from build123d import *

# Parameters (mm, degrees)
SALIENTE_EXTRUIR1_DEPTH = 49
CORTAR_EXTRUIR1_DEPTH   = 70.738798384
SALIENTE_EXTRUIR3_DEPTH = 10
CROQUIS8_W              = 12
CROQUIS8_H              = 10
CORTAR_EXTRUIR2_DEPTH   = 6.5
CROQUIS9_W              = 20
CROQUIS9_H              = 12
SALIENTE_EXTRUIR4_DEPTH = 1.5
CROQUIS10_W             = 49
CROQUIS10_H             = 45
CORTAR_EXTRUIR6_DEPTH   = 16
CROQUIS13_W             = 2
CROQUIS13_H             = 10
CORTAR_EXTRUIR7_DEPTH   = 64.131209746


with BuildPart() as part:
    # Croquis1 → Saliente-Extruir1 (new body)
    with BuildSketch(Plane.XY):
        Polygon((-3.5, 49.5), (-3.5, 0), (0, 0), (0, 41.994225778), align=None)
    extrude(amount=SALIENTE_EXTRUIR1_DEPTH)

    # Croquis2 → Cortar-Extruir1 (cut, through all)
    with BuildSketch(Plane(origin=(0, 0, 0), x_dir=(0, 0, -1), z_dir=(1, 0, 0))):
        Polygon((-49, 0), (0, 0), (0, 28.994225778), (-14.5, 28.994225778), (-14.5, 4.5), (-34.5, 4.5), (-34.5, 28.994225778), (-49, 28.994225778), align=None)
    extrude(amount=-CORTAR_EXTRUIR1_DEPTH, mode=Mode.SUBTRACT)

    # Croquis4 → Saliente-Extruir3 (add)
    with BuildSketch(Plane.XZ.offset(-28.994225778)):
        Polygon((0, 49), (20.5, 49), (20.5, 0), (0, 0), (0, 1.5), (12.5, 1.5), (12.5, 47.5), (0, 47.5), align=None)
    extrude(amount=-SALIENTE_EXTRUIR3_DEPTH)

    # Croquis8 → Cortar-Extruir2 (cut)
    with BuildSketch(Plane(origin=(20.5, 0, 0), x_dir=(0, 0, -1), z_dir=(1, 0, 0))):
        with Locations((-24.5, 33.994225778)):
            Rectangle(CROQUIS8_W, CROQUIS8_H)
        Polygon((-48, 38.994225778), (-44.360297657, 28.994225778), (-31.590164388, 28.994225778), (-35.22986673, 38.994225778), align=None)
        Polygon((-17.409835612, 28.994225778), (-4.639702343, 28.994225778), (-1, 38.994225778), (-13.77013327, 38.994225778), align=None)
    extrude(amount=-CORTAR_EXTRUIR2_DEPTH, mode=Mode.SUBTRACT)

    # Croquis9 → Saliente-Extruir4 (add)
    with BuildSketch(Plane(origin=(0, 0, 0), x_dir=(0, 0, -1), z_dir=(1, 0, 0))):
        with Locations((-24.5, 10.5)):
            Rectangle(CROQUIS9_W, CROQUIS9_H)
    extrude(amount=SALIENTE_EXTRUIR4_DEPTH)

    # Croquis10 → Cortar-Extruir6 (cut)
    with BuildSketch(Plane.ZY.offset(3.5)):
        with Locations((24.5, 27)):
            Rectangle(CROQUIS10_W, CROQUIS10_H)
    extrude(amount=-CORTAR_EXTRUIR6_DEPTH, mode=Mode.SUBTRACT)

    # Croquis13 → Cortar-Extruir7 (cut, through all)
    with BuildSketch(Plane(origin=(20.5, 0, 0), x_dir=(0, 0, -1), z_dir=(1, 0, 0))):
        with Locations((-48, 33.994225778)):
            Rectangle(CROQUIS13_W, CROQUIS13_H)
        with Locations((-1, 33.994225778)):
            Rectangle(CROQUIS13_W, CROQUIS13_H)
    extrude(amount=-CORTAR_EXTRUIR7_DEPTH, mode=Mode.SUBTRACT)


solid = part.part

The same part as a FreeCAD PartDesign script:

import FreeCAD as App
import Part
import Sketcher
Q = App.Units.Quantity

doc = App.newDocument("Part")
params = doc.addObject("Spreadsheet::Sheet", "Params")
for row, (alias, value) in enumerate([
    ("sketch1_width", "3.5 mm"),
    ("sketch1_height", "49.5 mm"),
    ("pad1_length", "49 mm"),
    ("sketch2_height", "49 mm"),
    ("sketch2_height2", "20 mm"),
    ("sketch3_height", "46 mm"),
    ("sketch3_height2", "49 mm"),
    ("sketch3_width", "20.5 mm"),
    ("sketch3_width2", "12.5 mm"),
    ("pad2_length", "10 mm"),
    ("sketch4_width", "10 mm"),
    ("sketch4_height", "12 mm"),
    ("pocket2_length", "6.5 mm"),
    ("sketch5_width", "12 mm"),
    ("sketch5_height", "20 mm"),
    ("pad3_length", "1.5 mm"),
    ("sketch6_width", "45 mm"),
    ("sketch6_height", "49 mm"),
    ("pocket3_length", "16 mm"),
    ("sketch7_width", "10 mm"),
    ("sketch7_height", "2 mm"),
], start=1):
    params.set(f"A{row}", alias)
    params.set(f"B{row}", "=" + value)
    params.setAlias(f"B{row}", alias)

body = doc.addObject("PartDesign::Body", "Body")

sketch1 = body.newObject("Sketcher::SketchObject", "Sketch")
sketch1.AttachmentSupport = (doc.getObject("XY_Plane"), [""])
sketch1.MapMode = "FlatFace"
sketch1.addGeometry(Part.LineSegment(App.Vector(-3.5, 49.5, 0), App.Vector(-3.5, 0, 0)), False)
sketch1.addGeometry(Part.LineSegment(App.Vector(-3.5, 0, 0), App.Vector(0, 0, 0)), False)
sketch1.addGeometry(Part.LineSegment(App.Vector(0, 0, 0), App.Vector(0, 41.994226, 0)), False)
sketch1.addGeometry(Part.LineSegment(App.Vector(0, 41.994226, 0), App.Vector(-3.5, 49.5, 0)), False)
sketch1.addConstraint(Sketcher.Constraint("Coincident", 0, 2, 1, 1))
sketch1.addConstraint(Sketcher.Constraint("Coincident", 1, 2, 2, 1))
sketch1.addConstraint(Sketcher.Constraint("Coincident", 2, 2, 3, 1))
sketch1.addConstraint(Sketcher.Constraint("Coincident", 3, 2, 0, 1))
sketch1.addConstraint(Sketcher.Constraint("Vertical", 0))
sketch1.addConstraint(Sketcher.Constraint("Horizontal", 1))
sketch1.addConstraint(Sketcher.Constraint("Vertical", 2))
sketch1.addConstraint(Sketcher.Constraint("Coincident", 1, 2, -1, 1))
sketch1.addConstraint(Sketcher.Constraint("Angle", 3, Q("115 deg")))
sketch1.addConstraint(Sketcher.Constraint("DistanceX", 1, 1, 1, 2, Q("3.5 mm")))
sketch1.addConstraint(Sketcher.Constraint("DistanceY", 0, 2, 0, 1, Q("49.5 mm")))
sketch1.setExpression("Constraints[9]", "Params.sketch1_width")
sketch1.setExpression("Constraints[10]", "Params.sketch1_height")
pad1 = body.newObject("PartDesign::Pad", "Pad")
pad1.Profile = sketch1
pad1.setExpression("Length", "Params.pad1_length")

sketch2 = body.newObject("Sketcher::SketchObject", "Sketch001")
sketch2.AttachmentSupport = (doc.getObject("YZ_Plane"), [""])
sketch2.MapMode = "FlatFace"
sketch2.addGeometry(Part.LineSegment(App.Vector(0, 49, 0), App.Vector(0, 0, 0)), False)
sketch2.addGeometry(Part.LineSegment(App.Vector(0, 0, 0), App.Vector(28.994226, 0, 0)), False)
sketch2.addGeometry(Part.LineSegment(App.Vector(28.994226, 0, 0), App.Vector(28.994226, 14.5, 0)), False)
sketch2.addGeometry(Part.LineSegment(App.Vector(28.994226, 14.5, 0), App.Vector(4.5, 14.5, 0)), False)
sketch2.addGeometry(Part.LineSegment(App.Vector(4.5, 14.5, 0), App.Vector(4.5, 34.5, 0)), False)
sketch2.addGeometry(Part.LineSegment(App.Vector(4.5, 34.5, 0), App.Vector(28.994226, 34.5, 0)), False)
sketch2.addGeometry(Part.LineSegment(App.Vector(28.994226, 34.5, 0), App.Vector(28.994226, 49, 0)), False)
sketch2.addGeometry(Part.LineSegment(App.Vector(28.994226, 49, 0), App.Vector(0, 49, 0)), False)
sketch2.addConstraint(Sketcher.Constraint("Coincident", 0, 2, 1, 1))
sketch2.addConstraint(Sketcher.Constraint("Coincident", 1, 2, 2, 1))
sketch2.addConstraint(Sketcher.Constraint("Coincident", 2, 2, 3, 1))
sketch2.addConstraint(Sketcher.Constraint("Coincident", 3, 2, 4, 1))
sketch2.addConstraint(Sketcher.Constraint("Coincident", 4, 2, 5, 1))
sketch2.addConstraint(Sketcher.Constraint("Coincident", 5, 2, 6, 1))
sketch2.addConstraint(Sketcher.Constraint("Coincident", 6, 2, 7, 1))
sketch2.addConstraint(Sketcher.Constraint("Coincident", 7, 2, 0, 1))
sketch2.addConstraint(Sketcher.Constraint("Vertical", 0))
sketch2.addConstraint(Sketcher.Constraint("Horizontal", 1))
sketch2.addConstraint(Sketcher.Constraint("Vertical", 2))
sketch2.addConstraint(Sketcher.Constraint("Horizontal", 3))
sketch2.addConstraint(Sketcher.Constraint("Vertical", 4))
sketch2.addConstraint(Sketcher.Constraint("Horizontal", 5))
sketch2.addConstraint(Sketcher.Constraint("Vertical", 6))
sketch2.addConstraint(Sketcher.Constraint("Horizontal", 7))
sketch2.addConstraint(Sketcher.Constraint("Coincident", 0, 2, -1, 1))
sketch2.addConstraint(Sketcher.Constraint("Vertical", 2, 2, 5, 2))
sketch2.addConstraint(Sketcher.Constraint("Equal", 2, 6))
sketch2.addConstraint(Sketcher.Constraint("DistanceY", 0, 2, 0, 1, Q("49 mm")))
sketch2.addConstraint(Sketcher.Constraint("DistanceY", 4, 1, 4, 2, Q("20 mm")))
sketch2.addConstraint(Sketcher.Constraint("DistanceX", -1, 1, 3, 2, Q("4.5 mm")))
sketch2.addConstraint(Sketcher.Constraint("DistanceX", 1, 1, 1, 2, Q("28.994226 mm")))
sketch2.setExpression("Constraints[19]", "Params.sketch2_height")
sketch2.setExpression("Constraints[20]", "Params.sketch2_height2")
pocket1 = body.newObject("PartDesign::Pocket", "Pocket")
pocket1.Profile = sketch2
pocket1.Type = "ThroughAll"

sketch3 = body.newObject("Sketcher::SketchObject", "Sketch002")
sketch3.AttachmentSupport = (doc.getObject("XZ_Plane"), [""])
sketch3.MapMode = "FlatFace"
sketch3.AttachmentOffset = App.Placement(App.Vector(0, 0, -28.994226), App.Rotation())
sketch3.addGeometry(Part.LineSegment(App.Vector(20.5, 49, 0), App.Vector(0, 49, 0)), False)
sketch3.addGeometry(Part.LineSegment(App.Vector(0, 49, 0), App.Vector(0, 47.5, 0)), False)
sketch3.addGeometry(Part.LineSegment(App.Vector(0, 47.5, 0), App.Vector(12.5, 47.5, 0)), False)
sketch3.addGeometry(Part.LineSegment(App.Vector(12.5, 47.5, 0), App.Vector(12.5, 1.5, 0)), False)
sketch3.addGeometry(Part.LineSegment(App.Vector(12.5, 1.5, 0), App.Vector(0, 1.5, 0)), False)
sketch3.addGeometry(Part.LineSegment(App.Vector(0, 1.5, 0), App.Vector(0, 0, 0)), False)
sketch3.addGeometry(Part.LineSegment(App.Vector(0, 0, 0), App.Vector(20.5, 0, 0)), False)
sketch3.addGeometry(Part.LineSegment(App.Vector(20.5, 0, 0), App.Vector(20.5, 49, 0)), False)
sketch3.addConstraint(Sketcher.Constraint("Coincident", 0, 2, 1, 1))
sketch3.addConstraint(Sketcher.Constraint("Coincident", 1, 2, 2, 1))
sketch3.addConstraint(Sketcher.Constraint("Coincident", 2, 2, 3, 1))
sketch3.addConstraint(Sketcher.Constraint("Coincident", 3, 2, 4, 1))
sketch3.addConstraint(Sketcher.Constraint("Coincident", 4, 2, 5, 1))
sketch3.addConstraint(Sketcher.Constraint("Coincident", 5, 2, 6, 1))
sketch3.addConstraint(Sketcher.Constraint("Coincident", 6, 2, 7, 1))
sketch3.addConstraint(Sketcher.Constraint("Coincident", 7, 2, 0, 1))
sketch3.addConstraint(Sketcher.Constraint("Horizontal", 0))
sketch3.addConstraint(Sketcher.Constraint("Vertical", 1))
sketch3.addConstraint(Sketcher.Constraint("Horizontal", 2))
sketch3.addConstraint(Sketcher.Constraint("Vertical", 3))
sketch3.addConstraint(Sketcher.Constraint("Horizontal", 4))
sketch3.addConstraint(Sketcher.Constraint("Vertical", 5))
sketch3.addConstraint(Sketcher.Constraint("Horizontal", 6))
sketch3.addConstraint(Sketcher.Constraint("Vertical", 7))
sketch3.addConstraint(Sketcher.Constraint("Coincident", 5, 2, -1, 1))
sketch3.addConstraint(Sketcher.Constraint("PointOnObject", 0, 2, -2))
sketch3.addConstraint(Sketcher.Constraint("Equal", 1, 5))
sketch3.addConstraint(Sketcher.Constraint("DistanceY", 3, 2, 3, 1, Q("46 mm")))
sketch3.addConstraint(Sketcher.Constraint("DistanceY", 7, 1, 7, 2, Q("49 mm")))
sketch3.addConstraint(Sketcher.Constraint("DistanceX", 0, 2, 0, 1, Q("20.5 mm")))
sketch3.addConstraint(Sketcher.Constraint("DistanceX", 2, 1, 2, 2, Q("12.5 mm")))
sketch3.setExpression("Constraints[19]", "Params.sketch3_height")
sketch3.setExpression("Constraints[20]", "Params.sketch3_height2")
sketch3.setExpression("Constraints[21]", "Params.sketch3_width")
sketch3.setExpression("Constraints[22]", "Params.sketch3_width2")
pad2 = body.newObject("PartDesign::Pad", "Pad001")
pad2.Profile = sketch3
pad2.setExpression("Length", "Params.pad2_length")
pad2.Reversed = True

sketch4 = body.newObject("Sketcher::SketchObject", "Sketch003")
sketch4.AttachmentSupport = (doc.getObject("YZ_Plane"), [""])
sketch4.MapMode = "FlatFace"
sketch4.AttachmentOffset = App.Placement(App.Vector(0, 0, 20.5), App.Rotation())
sketch4.addGeometry(Part.LineSegment(App.Vector(38.994226, 30.5, 0), App.Vector(28.994226, 30.5, 0)), False)
sketch4.addGeometry(Part.LineSegment(App.Vector(28.994226, 30.5, 0), App.Vector(28.994226, 18.5, 0)), False)
sketch4.addGeometry(Part.LineSegment(App.Vector(28.994226, 18.5, 0), App.Vector(38.994226, 18.5, 0)), False)
sketch4.addGeometry(Part.LineSegment(App.Vector(38.994226, 18.5, 0), App.Vector(38.994226, 30.5, 0)), False)
sketch4.addGeometry(Part.LineSegment(App.Vector(38.994226, 48, 0), App.Vector(28.994226, 44.360298, 0)), False)
sketch4.addGeometry(Part.LineSegment(App.Vector(28.994226, 44.360298, 0), App.Vector(28.994226, 31.590164, 0)), False)
sketch4.addGeometry(Part.LineSegment(App.Vector(28.994226, 31.590164, 0), App.Vector(38.994226, 35.229867, 0)), False)
sketch4.addGeometry(Part.LineSegment(App.Vector(38.994226, 35.229867, 0), App.Vector(38.994226, 48, 0)), False)
sketch4.addGeometry(Part.LineSegment(App.Vector(28.994226, 17.409836, 0), App.Vector(28.994226, 4.639702, 0)), False)
sketch4.addGeometry(Part.LineSegment(App.Vector(28.994226, 4.639702, 0), App.Vector(38.994226, 1, 0)), False)
sketch4.addGeometry(Part.LineSegment(App.Vector(38.994226, 1, 0), App.Vector(38.994226, 13.770133, 0)), False)
sketch4.addGeometry(Part.LineSegment(App.Vector(38.994226, 13.770133, 0), App.Vector(28.994226, 17.409836, 0)), False)
sketch4.addConstraint(Sketcher.Constraint("Coincident", 0, 2, 1, 1))
sketch4.addConstraint(Sketcher.Constraint("Coincident", 1, 2, 2, 1))
sketch4.addConstraint(Sketcher.Constraint("Coincident", 2, 2, 3, 1))
sketch4.addConstraint(Sketcher.Constraint("Coincident", 3, 2, 0, 1))
sketch4.addConstraint(Sketcher.Constraint("Coincident", 4, 2, 5, 1))
sketch4.addConstraint(Sketcher.Constraint("Coincident", 5, 2, 6, 1))
sketch4.addConstraint(Sketcher.Constraint("Coincident", 6, 2, 7, 1))
sketch4.addConstraint(Sketcher.Constraint("Coincident", 7, 2, 4, 1))
sketch4.addConstraint(Sketcher.Constraint("Coincident", 8, 2, 9, 1))
sketch4.addConstraint(Sketcher.Constraint("Coincident", 9, 2, 10, 1))
sketch4.addConstraint(Sketcher.Constraint("Coincident", 10, 2, 11, 1))
sketch4.addConstraint(Sketcher.Constraint("Coincident", 11, 2, 8, 1))
sketch4.addConstraint(Sketcher.Constraint("Horizontal", 0))
sketch4.addConstraint(Sketcher.Constraint("Vertical", 1))
sketch4.addConstraint(Sketcher.Constraint("Horizontal", 2))
sketch4.addConstraint(Sketcher.Constraint("Vertical", 3))
sketch4.addConstraint(Sketcher.Constraint("Vertical", 5))
sketch4.addConstraint(Sketcher.Constraint("Vertical", 7))
sketch4.addConstraint(Sketcher.Constraint("Vertical", 8))
sketch4.addConstraint(Sketcher.Constraint("Vertical", 10))
sketch4.addConstraint(Sketcher.Constraint("Parallel", 4, 6))
sketch4.addConstraint(Sketcher.Constraint("Parallel", 9, 11))
sketch4.addConstraint(Sketcher.Constraint("Vertical", 1, 2, 4, 2))
sketch4.addConstraint(Sketcher.Constraint("Vertical", 3, 2, 6, 2))
sketch4.addConstraint(Sketcher.Constraint("Vertical", 5, 2, 8, 2))
sketch4.addConstraint(Sketcher.Constraint("Vertical", 7, 2, 9, 2))
sketch4.addConstraint(Sketcher.Constraint("Equal", 7, 8))
sketch4.addConstraint(Sketcher.Constraint("Equal", 6, 9))
sketch4.addConstraint(Sketcher.Constraint("DistanceX", 0, 2, 0, 1, Q("10 mm")))
sketch4.addConstraint(Sketcher.Constraint("DistanceY", 1, 2, 1, 1, Q("12 mm")))
sketch4.addConstraint(Sketcher.Constraint("Angle", 4, Q("-160 deg")))
sketch4.addConstraint(Sketcher.Constraint("DistanceY", -1, 1, 7, 2, Q("48 mm")))
sketch4.addConstraint(Sketcher.Constraint("DistanceY", -1, 1, 9, 2, Q("1 mm")))
sketch4.addConstraint(Sketcher.Constraint("DistanceY", -1, 1, 0, 2, Q("30.5 mm")))
sketch4.addConstraint(Sketcher.Constraint("DistanceY", 5, 2, 5, 1, Q("12.770133 mm")))
sketch4.addConstraint(Sketcher.Constraint("DistanceX", -1, 1, 0, 2, Q("28.994226 mm")))
sketch4.setExpression("Constraints[28]", "Params.sketch4_width")
sketch4.setExpression("Constraints[29]", "Params.sketch4_height")
pocket2 = body.newObject("PartDesign::Pocket", "Pocket001")
pocket2.Profile = sketch4
pocket2.setExpression("Length", "Params.pocket2_length")

sketch5 = body.newObject("Sketcher::SketchObject", "Sketch004")
sketch5.AttachmentSupport = (doc.getObject("YZ_Plane"), [""])
sketch5.MapMode = "FlatFace"
sketch5.addGeometry(Part.LineSegment(App.Vector(16.5, 34.5, 0), App.Vector(4.5, 34.5, 0)), False)
sketch5.addGeometry(Part.LineSegment(App.Vector(4.5, 34.5, 0), App.Vector(4.5, 14.5, 0)), False)
sketch5.addGeometry(Part.LineSegment(App.Vector(4.5, 14.5, 0), App.Vector(16.5, 14.5, 0)), False)
sketch5.addGeometry(Part.LineSegment(App.Vector(16.5, 14.5, 0), App.Vector(16.5, 34.5, 0)), False)
sketch5.addConstraint(Sketcher.Constraint("Coincident", 0, 2, 1, 1))
sketch5.addConstraint(Sketcher.Constraint("Coincident", 1, 2, 2, 1))
sketch5.addConstraint(Sketcher.Constraint("Coincident", 2, 2, 3, 1))
sketch5.addConstraint(Sketcher.Constraint("Coincident", 3, 2, 0, 1))
sketch5.addConstraint(Sketcher.Constraint("Horizontal", 0))
sketch5.addConstraint(Sketcher.Constraint("Vertical", 1))
sketch5.addConstraint(Sketcher.Constraint("Horizontal", 2))
sketch5.addConstraint(Sketcher.Constraint("Vertical", 3))
sketch5.addConstraint(Sketcher.Constraint("DistanceX", 0, 2, 0, 1, Q("12 mm")))
sketch5.addConstraint(Sketcher.Constraint("DistanceY", 1, 2, 1, 1, Q("20 mm")))
sketch5.addConstraint(Sketcher.Constraint("DistanceX", -1, 1, 0, 2, Q("4.5 mm")))
sketch5.addConstraint(Sketcher.Constraint("DistanceY", -1, 1, 0, 2, Q("34.5 mm")))
sketch5.setExpression("Constraints[8]", "Params.sketch5_width")
sketch5.setExpression("Constraints[9]", "Params.sketch5_height")
pad3 = body.newObject("PartDesign::Pad", "Pad002")
pad3.Profile = sketch5
pad3.setExpression("Length", "Params.pad3_length")

sketch6 = body.newObject("Sketcher::SketchObject", "Sketch005")
sketch6.AttachmentSupport = (doc.getObject("YZ_Plane"), [""])
sketch6.MapMode = "FlatFace"
sketch6.AttachmentOffset = App.Placement(App.Vector(0, 0, -3.5), App.Rotation())
sketch6.addGeometry(Part.LineSegment(App.Vector(49.5, 0, 0), App.Vector(4.5, 0, 0)), False)
sketch6.addGeometry(Part.LineSegment(App.Vector(4.5, 0, 0), App.Vector(4.5, 49, 0)), False)
sketch6.addGeometry(Part.LineSegment(App.Vector(4.5, 49, 0), App.Vector(49.5, 49, 0)), False)
sketch6.addGeometry(Part.LineSegment(App.Vector(49.5, 49, 0), App.Vector(49.5, 0, 0)), False)
sketch6.addConstraint(Sketcher.Constraint("Coincident", 0, 2, 1, 1))
sketch6.addConstraint(Sketcher.Constraint("Coincident", 1, 2, 2, 1))
sketch6.addConstraint(Sketcher.Constraint("Coincident", 2, 2, 3, 1))
sketch6.addConstraint(Sketcher.Constraint("Coincident", 3, 2, 0, 1))
sketch6.addConstraint(Sketcher.Constraint("Horizontal", 0))
sketch6.addConstraint(Sketcher.Constraint("Vertical", 1))
sketch6.addConstraint(Sketcher.Constraint("Horizontal", 2))
sketch6.addConstraint(Sketcher.Constraint("Vertical", 3))
sketch6.addConstraint(Sketcher.Constraint("PointOnObject", 0, 2, -1))
sketch6.addConstraint(Sketcher.Constraint("DistanceX", 0, 2, 0, 1, Q("45 mm")))
sketch6.addConstraint(Sketcher.Constraint("DistanceY", 1, 1, 1, 2, Q("49 mm")))
sketch6.addConstraint(Sketcher.Constraint("DistanceX", -1, 1, 0, 2, Q("4.5 mm")))
sketch6.setExpression("Constraints[9]", "Params.sketch6_width")
sketch6.setExpression("Constraints[10]", "Params.sketch6_height")
pocket3 = body.newObject("PartDesign::Pocket", "Pocket002")
pocket3.Profile = sketch6
pocket3.setExpression("Length", "Params.pocket3_length")
pocket3.Reversed = True

sketch7 = body.newObject("Sketcher::SketchObject", "Sketch006")
sketch7.AttachmentSupport = (doc.getObject("YZ_Plane"), [""])
sketch7.MapMode = "FlatFace"
sketch7.AttachmentOffset = App.Placement(App.Vector(0, 0, 20.5), App.Rotation())
sketch7.addGeometry(Part.LineSegment(App.Vector(38.994226, 49, 0), App.Vector(28.994226, 49, 0)), False)
sketch7.addGeometry(Part.LineSegment(App.Vector(28.994226, 49, 0), App.Vector(28.994226, 47, 0)), False)
sketch7.addGeometry(Part.LineSegment(App.Vector(28.994226, 47, 0), App.Vector(38.994226, 47, 0)), False)
sketch7.addGeometry(Part.LineSegment(App.Vector(38.994226, 47, 0), App.Vector(38.994226, 49, 0)), False)
sketch7.addGeometry(Part.LineSegment(App.Vector(38.994226, 2, 0), App.Vector(28.994226, 2, 0)), False)
sketch7.addGeometry(Part.LineSegment(App.Vector(28.994226, 2, 0), App.Vector(28.994226, 0, 0)), False)
sketch7.addGeometry(Part.LineSegment(App.Vector(28.994226, 0, 0), App.Vector(38.994226, 0, 0)), False)
sketch7.addGeometry(Part.LineSegment(App.Vector(38.994226, 0, 0), App.Vector(38.994226, 2, 0)), False)
sketch7.addConstraint(Sketcher.Constraint("Coincident", 0, 2, 1, 1))
sketch7.addConstraint(Sketcher.Constraint("Coincident", 1, 2, 2, 1))
sketch7.addConstraint(Sketcher.Constraint("Coincident", 2, 2, 3, 1))
sketch7.addConstraint(Sketcher.Constraint("Coincident", 3, 2, 0, 1))
sketch7.addConstraint(Sketcher.Constraint("Coincident", 4, 2, 5, 1))
sketch7.addConstraint(Sketcher.Constraint("Coincident", 5, 2, 6, 1))
sketch7.addConstraint(Sketcher.Constraint("Coincident", 6, 2, 7, 1))
sketch7.addConstraint(Sketcher.Constraint("Coincident", 7, 2, 4, 1))
sketch7.addConstraint(Sketcher.Constraint("Horizontal", 0))
sketch7.addConstraint(Sketcher.Constraint("Vertical", 1))
sketch7.addConstraint(Sketcher.Constraint("Horizontal", 2))
sketch7.addConstraint(Sketcher.Constraint("Vertical", 3))
sketch7.addConstraint(Sketcher.Constraint("Horizontal", 4))
sketch7.addConstraint(Sketcher.Constraint("Vertical", 5))
sketch7.addConstraint(Sketcher.Constraint("Horizontal", 6))
sketch7.addConstraint(Sketcher.Constraint("Vertical", 7))
sketch7.addConstraint(Sketcher.Constraint("PointOnObject", 5, 2, -1))
sketch7.addConstraint(Sketcher.Constraint("Vertical", 1, 2, 4, 2))
sketch7.addConstraint(Sketcher.Constraint("Vertical", 3, 2, 6, 2))
sketch7.addConstraint(Sketcher.Constraint("Equal", 3, 5))
sketch7.addConstraint(Sketcher.Constraint("DistanceX", 0, 2, 0, 1, Q("10 mm")))
sketch7.addConstraint(Sketcher.Constraint("DistanceY", 1, 2, 1, 1, Q("2 mm")))
sketch7.addConstraint(Sketcher.Constraint("DistanceY", -1, 1, 0, 2, Q("49 mm")))
sketch7.addConstraint(Sketcher.Constraint("DistanceX", -1, 1, 0, 2, Q("28.994226 mm")))
sketch7.setExpression("Constraints[20]", "Params.sketch7_width")
sketch7.setExpression("Constraints[21]", "Params.sketch7_height")
pocket4 = body.newObject("PartDesign::Pocket", "Pocket003")
pocket4.Profile = sketch7
pocket4.Type = "ThroughAll"

doc.recompute()
